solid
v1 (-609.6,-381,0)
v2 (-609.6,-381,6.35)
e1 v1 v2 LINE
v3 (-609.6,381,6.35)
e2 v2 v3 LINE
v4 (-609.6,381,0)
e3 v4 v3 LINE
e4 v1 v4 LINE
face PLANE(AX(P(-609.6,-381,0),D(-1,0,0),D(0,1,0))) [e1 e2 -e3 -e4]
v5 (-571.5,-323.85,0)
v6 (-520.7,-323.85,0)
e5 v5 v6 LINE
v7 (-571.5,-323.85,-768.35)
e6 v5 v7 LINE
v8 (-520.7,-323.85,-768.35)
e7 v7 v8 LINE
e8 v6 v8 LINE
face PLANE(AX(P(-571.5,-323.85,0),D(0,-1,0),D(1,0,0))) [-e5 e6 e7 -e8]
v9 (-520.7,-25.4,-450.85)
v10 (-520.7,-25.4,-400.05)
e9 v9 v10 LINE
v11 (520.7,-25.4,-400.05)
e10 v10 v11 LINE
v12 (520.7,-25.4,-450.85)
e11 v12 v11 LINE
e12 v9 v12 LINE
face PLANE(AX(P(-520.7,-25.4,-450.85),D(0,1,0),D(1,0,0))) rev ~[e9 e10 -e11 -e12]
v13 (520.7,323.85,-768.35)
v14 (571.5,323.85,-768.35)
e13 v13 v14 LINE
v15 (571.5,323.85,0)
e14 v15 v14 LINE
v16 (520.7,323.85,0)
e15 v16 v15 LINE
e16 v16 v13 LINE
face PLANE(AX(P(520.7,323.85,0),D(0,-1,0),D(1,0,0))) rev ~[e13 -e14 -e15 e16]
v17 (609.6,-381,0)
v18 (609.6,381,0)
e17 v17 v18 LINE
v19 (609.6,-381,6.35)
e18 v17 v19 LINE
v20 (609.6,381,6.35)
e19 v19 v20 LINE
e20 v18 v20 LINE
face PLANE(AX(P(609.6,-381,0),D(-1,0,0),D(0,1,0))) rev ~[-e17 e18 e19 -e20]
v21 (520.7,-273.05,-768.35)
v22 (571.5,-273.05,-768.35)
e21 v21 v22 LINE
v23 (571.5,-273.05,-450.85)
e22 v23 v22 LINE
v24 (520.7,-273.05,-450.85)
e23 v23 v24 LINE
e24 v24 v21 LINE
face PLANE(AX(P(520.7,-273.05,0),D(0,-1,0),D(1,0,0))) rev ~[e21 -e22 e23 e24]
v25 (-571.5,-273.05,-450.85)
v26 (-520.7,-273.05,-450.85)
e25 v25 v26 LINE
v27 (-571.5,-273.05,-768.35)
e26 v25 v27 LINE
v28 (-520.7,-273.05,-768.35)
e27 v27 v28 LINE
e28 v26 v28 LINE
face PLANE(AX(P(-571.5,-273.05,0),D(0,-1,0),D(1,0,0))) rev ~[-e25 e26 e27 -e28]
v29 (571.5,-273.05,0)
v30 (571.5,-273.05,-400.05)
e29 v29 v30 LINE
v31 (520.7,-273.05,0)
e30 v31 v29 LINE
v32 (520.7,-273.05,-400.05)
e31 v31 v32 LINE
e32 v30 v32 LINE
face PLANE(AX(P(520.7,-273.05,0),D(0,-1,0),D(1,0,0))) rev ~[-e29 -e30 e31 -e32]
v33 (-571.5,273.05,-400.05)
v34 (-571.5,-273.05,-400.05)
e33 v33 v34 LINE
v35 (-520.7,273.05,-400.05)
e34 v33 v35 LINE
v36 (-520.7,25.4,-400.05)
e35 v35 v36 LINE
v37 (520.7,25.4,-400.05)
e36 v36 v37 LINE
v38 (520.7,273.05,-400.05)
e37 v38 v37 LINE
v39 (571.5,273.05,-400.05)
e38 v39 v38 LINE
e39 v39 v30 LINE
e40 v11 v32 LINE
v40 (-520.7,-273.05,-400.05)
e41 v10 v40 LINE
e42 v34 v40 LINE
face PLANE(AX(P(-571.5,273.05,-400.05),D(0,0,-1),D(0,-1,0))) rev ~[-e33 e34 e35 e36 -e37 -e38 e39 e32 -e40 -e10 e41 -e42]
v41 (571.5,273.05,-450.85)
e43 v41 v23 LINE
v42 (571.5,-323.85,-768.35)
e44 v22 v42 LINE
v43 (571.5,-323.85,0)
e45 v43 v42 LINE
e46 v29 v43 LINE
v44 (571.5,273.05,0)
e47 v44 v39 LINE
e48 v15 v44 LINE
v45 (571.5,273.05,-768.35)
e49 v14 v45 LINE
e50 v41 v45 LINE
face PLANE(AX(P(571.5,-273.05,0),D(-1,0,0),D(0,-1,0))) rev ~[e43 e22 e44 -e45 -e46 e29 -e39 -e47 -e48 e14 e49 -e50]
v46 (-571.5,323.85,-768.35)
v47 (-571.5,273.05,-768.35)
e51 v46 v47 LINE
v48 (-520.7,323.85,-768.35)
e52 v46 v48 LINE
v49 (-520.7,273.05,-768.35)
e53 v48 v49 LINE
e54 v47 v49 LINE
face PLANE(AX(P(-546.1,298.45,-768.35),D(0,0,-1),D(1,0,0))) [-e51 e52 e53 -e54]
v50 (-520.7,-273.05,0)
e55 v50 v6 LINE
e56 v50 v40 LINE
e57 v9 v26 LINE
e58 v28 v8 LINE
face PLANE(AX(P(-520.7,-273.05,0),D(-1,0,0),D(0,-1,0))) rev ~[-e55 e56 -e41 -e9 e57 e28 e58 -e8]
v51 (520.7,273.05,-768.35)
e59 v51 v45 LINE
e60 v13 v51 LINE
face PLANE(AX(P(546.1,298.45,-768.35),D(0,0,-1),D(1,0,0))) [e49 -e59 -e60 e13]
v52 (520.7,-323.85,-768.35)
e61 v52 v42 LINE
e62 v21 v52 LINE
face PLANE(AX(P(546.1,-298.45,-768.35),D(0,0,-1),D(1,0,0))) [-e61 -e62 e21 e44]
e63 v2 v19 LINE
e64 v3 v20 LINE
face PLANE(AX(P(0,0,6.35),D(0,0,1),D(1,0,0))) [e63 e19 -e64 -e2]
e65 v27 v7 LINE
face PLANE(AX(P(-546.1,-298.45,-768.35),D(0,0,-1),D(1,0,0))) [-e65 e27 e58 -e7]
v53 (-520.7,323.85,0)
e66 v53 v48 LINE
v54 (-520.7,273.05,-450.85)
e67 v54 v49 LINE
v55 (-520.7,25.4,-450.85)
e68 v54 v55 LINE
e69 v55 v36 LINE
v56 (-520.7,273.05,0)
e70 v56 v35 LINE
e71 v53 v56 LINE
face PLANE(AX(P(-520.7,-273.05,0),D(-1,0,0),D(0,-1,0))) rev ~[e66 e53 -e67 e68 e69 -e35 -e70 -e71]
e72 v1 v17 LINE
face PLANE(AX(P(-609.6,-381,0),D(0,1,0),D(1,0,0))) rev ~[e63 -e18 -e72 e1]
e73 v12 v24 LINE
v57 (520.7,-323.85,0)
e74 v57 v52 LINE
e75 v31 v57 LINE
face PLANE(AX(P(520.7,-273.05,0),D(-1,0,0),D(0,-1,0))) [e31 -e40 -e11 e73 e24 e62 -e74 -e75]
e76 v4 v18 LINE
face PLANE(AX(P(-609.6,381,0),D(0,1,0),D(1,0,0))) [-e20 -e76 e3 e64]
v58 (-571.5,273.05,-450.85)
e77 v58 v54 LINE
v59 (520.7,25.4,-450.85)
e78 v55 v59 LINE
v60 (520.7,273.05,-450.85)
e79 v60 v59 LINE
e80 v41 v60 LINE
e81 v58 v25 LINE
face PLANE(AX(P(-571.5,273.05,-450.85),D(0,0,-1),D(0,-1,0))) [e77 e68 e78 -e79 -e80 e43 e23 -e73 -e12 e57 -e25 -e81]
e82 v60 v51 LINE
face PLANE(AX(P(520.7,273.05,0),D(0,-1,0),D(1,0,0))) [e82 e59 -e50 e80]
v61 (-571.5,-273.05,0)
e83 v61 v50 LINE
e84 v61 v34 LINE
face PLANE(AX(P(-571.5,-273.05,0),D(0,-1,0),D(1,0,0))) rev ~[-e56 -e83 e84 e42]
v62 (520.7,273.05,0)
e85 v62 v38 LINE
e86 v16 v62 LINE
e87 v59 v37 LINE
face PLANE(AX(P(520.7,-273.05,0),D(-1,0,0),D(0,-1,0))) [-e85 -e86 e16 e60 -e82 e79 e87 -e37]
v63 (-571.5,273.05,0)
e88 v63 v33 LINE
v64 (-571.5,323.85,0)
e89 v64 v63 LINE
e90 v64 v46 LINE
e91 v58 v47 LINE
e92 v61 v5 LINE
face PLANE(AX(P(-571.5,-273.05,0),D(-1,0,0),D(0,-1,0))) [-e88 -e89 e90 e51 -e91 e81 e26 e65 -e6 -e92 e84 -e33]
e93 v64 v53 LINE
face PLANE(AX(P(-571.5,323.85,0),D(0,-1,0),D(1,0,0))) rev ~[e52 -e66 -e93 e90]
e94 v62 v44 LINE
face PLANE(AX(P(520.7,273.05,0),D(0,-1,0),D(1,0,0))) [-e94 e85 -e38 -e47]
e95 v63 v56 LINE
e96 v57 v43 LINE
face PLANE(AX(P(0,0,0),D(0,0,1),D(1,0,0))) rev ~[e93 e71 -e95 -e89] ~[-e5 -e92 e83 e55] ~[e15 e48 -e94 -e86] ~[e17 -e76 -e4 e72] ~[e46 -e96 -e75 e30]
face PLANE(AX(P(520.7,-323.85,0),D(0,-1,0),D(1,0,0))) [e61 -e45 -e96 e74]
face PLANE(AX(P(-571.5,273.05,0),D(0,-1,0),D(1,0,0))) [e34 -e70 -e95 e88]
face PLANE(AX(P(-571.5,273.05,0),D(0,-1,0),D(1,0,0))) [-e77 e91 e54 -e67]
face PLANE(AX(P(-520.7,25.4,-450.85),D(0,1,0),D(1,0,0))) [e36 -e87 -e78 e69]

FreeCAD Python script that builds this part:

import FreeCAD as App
import Part
import Sketcher

V = App.Vector
Q = App.Units.Quantity


def add_polygon(sketch, points):
    """Adds a closed chain of lines whose ends are joined by coincident constraints."""
    first, n = sketch.GeometryCount, len(points)
    for a, b in zip(points, points[1:] + points[:1]):
        sketch.addGeometry(Part.LineSegment(App.Vector(*a, 0), App.Vector(*b, 0)), False)
    for i in range(n):
        sketch.addConstraint(Sketcher.Constraint("Coincident", first + i, 2, first + (i + 1) % n, 1))

doc = App.newDocument("Part")
params = doc.addObject("Spreadsheet::Sheet", "Params")
for row, (alias, value) in enumerate([
    ("sketch1_width", "48 in"),
    ("sketch1_height", "30 in"),
    ("pad1_length", "0.25 in"),
    ("sketch2_width", "2 in"),
    ("pad2_length", "30.25 in"),
    ("sketch3_height", "2 in"),
    ("sketch3_width", "21.5 in"),
    ("pad3_length", "2 in"),
    ("sketch4_width", "41 in"),
    ("sketch4_height", "2 in"),
    ("pad4_length", "2 in"),
], start=1):
    params.set(f"A{row}", alias)
    params.set(f"B{row}", "=" + value)
    params.setAlias(f"B{row}", alias)

body = doc.addObject("PartDesign::Body", "Body")

# Sketch on XY plane
sketch1 = body.newObject("Sketcher::SketchObject", "Sketch")
sketch1.AttachmentSupport = (doc.getObject("XY_Plane"), [""])
sketch1.MapMode = "FlatFace"
add_polygon(sketch1, [(-609.6, 381), (-609.6, -381), (609.6, -381), (609.6, 381)])  # lines 0-3
sketch1.addConstraint([
    Sketcher.Constraint("Vertical", 0),
    Sketcher.Constraint("Horizontal", 1),
    Sketcher.Constraint("Vertical", 2),
    Sketcher.Constraint("Horizontal", 3),
    Sketcher.Constraint("Symmetric", 0, 2, 2, 2, -1, 1),
    Sketcher.Constraint("DistanceX", 1, 1, 1, 2, Q("48 in")),
    Sketcher.Constraint("DistanceY", 0, 2, 0, 1, Q("30 in")),
])
sketch1.setExpression("Constraints[9]", "Params.sketch1_width")
sketch1.setExpression("Constraints[10]", "Params.sketch1_height")
pad1 = body.newObject("PartDesign::Pad", "Pad")
pad1.Profile = sketch1
pad1.setExpression("Length", "Params.pad1_length")

# Sketch on XY plane
sketch2 = body.newObject("Sketcher::SketchObject", "Sketch001")
sketch2.AttachmentSupport = (doc.getObject("XY_Plane"), [""])
sketch2.MapMode = "FlatFace"
add_polygon(sketch2, [(520.7, 273.05), (520.7, 323.85), (571.5, 323.85), (571.5, 273.05)])  # lines 0-3
add_polygon(sketch2, [(-571.5, 273.05), (-571.5, 323.85), (-520.7, 323.85), (-520.7, 273.05)])  # lines 4-7
add_polygon(sketch2, [(520.7, -323.85), (520.7, -273.05), (571.5, -273.05), (571.5, -323.85)])  # lines 8-11
add_polygon(sketch2, [(-571.5, -323.85), (-571.5, -273.05), (-520.7, -273.05), (-520.7, -323.85)])  # lines 12-15
sketch2.addConstraint([
    Sketcher.Constraint("Vertical", 0),
    Sketcher.Constraint("Horizontal", 1),
    Sketcher.Constraint("Vertical", 2),
    Sketcher.Constraint("Horizontal", 3),
    Sketcher.Constraint("Vertical", 4),
    Sketcher.Constraint("Horizontal", 5),
    Sketcher.Constraint("Vertical", 6),
    Sketcher.Constraint("Horizontal", 7),
    Sketcher.Constraint("Vertical", 8),
    Sketcher.Constraint("Horizontal", 9),
    Sketcher.Constraint("Vertical", 10),
    Sketcher.Constraint("Horizontal", 11),
    Sketcher.Constraint("Vertical", 12),
    Sketcher.Constraint("Horizontal", 13),
    Sketcher.Constraint("Vertical", 14),
    Sketcher.Constraint("Horizontal", 15),
    Sketcher.Constraint("Symmetric", 6, 2, 8, 2, -1, 1),
    Sketcher.Constraint("Symmetric", 4, 2, 10, 2, -1, 1),
    Sketcher.Constraint("Symmetric", 2, 2, 12, 2, -1, 1),
    Sketcher.Constraint("Symmetric", 0, 2, 14, 2, -1, 1),
    Sketcher.Constraint("Symmetric", 1, 2, 4, 2, -2),
    Sketcher.Constraint("Symmetric", 3, 2, 6, 2, -2),
    Sketcher.Constraint("Equal", 15, 0),
    Sketcher.Constraint("DistanceX", 1, 1, 1, 2, Q("2 in")),
    Sketcher.Constraint("DistanceX", 4, 2, 0, 2, Q("43 in")),
    Sketcher.Constraint("DistanceY", 8, 2, 3, 2, Q("21.5 in")),
])
sketch2.setExpression("Constraints[39]", "Params.sketch2_width")
pad2 = body.newObject("PartDesign::Pad", "Pad001")
pad2.Profile = sketch2
pad2.setExpression("Length", "Params.pad2_length")
pad2.Reversed = True

# Sketch on YZ plane
sketch3 = body.newObject("Sketcher::SketchObject", "Sketch002")
sketch3.AttachmentSupport = (doc.getObject("YZ_Plane"), [""])
sketch3.MapMode = "FlatFace"
sketch3.AttachmentOffset = App.Placement(V(0, 0, -22.5 * 25.4), App.Rotation())
add_polygon(sketch3, [(273.05, -400.05), (273.05, -450.85), (-273.05, -450.85), (-273.05, -400.05)])  # lines 0-3
sketch3.addConstraint([
    Sketcher.Constraint("Vertical", 0),
    Sketcher.Constraint("Horizontal", 1),
    Sketcher.Constraint("Vertical", 2),
    Sketcher.Constraint("Horizontal", 3),
    Sketcher.Constraint("DistanceY", 0, 2, 0, 1, Q("2 in")),
    Sketcher.Constraint("DistanceX", 1, 2, 1, 1, Q("21.5 in")),
    Sketcher.Constraint("DistanceX", -1, 1, 0, 2, Q("10.75 in")),
    Sketcher.Constraint("DistanceY", 0, 2, -1, 1, Q("17.75 in")),
])
sketch3.setExpression("Constraints[8]", "Params.sketch3_height")
sketch3.setExpression("Constraints[9]", "Params.sketch3_width")
pad3 = body.newObject("PartDesign::Pad", "Pad002")
pad3.Profile = sketch3
pad3.setExpression("Length", "Params.pad3_length")
body2 = doc.addObject("PartDesign::Body", "Body001")
doc.recompute()

body2.BaseFeature = body
doc.recompute()

mirroring = doc.addObject("Part::Mirroring", "Mirroring")
mirroring.Source = body
mirroring.Base = V(0, 0, 0)
mirroring.Normal = V(1, 0, 0)
body3 = doc.addObject("PartDesign::Body", "Body002")
body3.BaseFeature = mirroring
boolean = body2.newObject("PartDesign::Boolean", "Boolean")
boolean.Type = "Fuse"
boolean.addObjects([body3])
doc.recompute()

# Sketch on XY plane
sketch4 = body2.newObject("Sketcher::SketchObject", "Sketch003")
sketch4.AttachmentSupport = (doc.getObject("XY_Plane001"), [""])
sketch4.MapMode = "FlatFace"
sketch4.AttachmentOffset = App.Placement(V(0, 0, -17.75 * 25.4), App.Rotation())
add_polygon(sketch4, [(-520.7, -25.4), (-520.7, 25.4), (520.7, 25.4), (520.7, -25.4)])  # lines 0-3
sketch4.addConstraint([
    Sketcher.Constraint("Vertical", 0),
    Sketcher.Constraint("Horizontal", 1),
    Sketcher.Constraint("Vertical", 2),
    Sketcher.Constraint("Horizontal", 3),
    Sketcher.Constraint("Symmetric", 0, 2, 2, 2, -1, 1),
    Sketcher.Constraint("DistanceX", 1, 1, 1, 2, Q("41 in")),
    Sketcher.Constraint("DistanceY", 0, 1, 0, 2, Q("2 in")),
])
sketch4.setExpression("Constraints[9]", "Params.sketch4_width")
sketch4.setExpression("Constraints[10]", "Params.sketch4_height")
pad4 = body2.newObject("PartDesign::Pad", "Pad003")
pad4.Profile = sketch4
pad4.setExpression("Length", "Params.pad4_length")
mirroring.Visibility = False

doc.recompute()
